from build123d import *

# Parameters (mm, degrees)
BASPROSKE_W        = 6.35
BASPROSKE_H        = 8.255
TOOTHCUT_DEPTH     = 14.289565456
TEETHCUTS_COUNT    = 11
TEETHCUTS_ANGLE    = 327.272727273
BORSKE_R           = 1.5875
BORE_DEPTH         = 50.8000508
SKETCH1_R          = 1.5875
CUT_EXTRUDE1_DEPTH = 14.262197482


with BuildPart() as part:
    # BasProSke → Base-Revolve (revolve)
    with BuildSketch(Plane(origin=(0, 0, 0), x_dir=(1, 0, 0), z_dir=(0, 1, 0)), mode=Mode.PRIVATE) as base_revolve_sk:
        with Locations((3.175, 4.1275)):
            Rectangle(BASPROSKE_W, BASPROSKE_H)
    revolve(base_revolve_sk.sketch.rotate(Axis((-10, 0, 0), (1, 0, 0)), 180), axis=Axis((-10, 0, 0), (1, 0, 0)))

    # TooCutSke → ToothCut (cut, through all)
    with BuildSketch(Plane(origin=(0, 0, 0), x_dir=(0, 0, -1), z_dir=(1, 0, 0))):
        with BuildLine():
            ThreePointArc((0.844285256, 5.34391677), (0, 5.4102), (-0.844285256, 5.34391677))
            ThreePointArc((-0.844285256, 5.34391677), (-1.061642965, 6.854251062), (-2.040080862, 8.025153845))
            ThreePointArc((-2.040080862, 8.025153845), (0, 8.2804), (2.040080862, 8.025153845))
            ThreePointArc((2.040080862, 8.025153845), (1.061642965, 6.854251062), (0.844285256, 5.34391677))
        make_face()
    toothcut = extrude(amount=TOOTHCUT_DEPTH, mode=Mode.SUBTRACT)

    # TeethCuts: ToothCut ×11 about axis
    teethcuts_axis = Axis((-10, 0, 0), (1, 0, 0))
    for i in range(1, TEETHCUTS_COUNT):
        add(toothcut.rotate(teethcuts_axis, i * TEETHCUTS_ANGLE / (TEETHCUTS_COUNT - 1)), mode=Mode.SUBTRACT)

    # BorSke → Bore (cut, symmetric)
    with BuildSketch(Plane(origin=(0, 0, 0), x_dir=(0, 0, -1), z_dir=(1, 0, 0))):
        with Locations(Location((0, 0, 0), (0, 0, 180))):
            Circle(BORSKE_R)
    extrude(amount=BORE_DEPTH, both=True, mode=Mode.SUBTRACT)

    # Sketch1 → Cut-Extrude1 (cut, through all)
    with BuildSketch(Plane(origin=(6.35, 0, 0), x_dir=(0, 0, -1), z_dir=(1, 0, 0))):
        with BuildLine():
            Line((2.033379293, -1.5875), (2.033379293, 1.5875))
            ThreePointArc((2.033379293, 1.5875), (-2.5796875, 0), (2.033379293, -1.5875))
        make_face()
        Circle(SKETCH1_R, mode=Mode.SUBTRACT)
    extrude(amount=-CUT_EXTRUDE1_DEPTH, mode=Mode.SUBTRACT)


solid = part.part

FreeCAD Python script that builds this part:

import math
import FreeCAD as App
import Part
import Sketcher
Q = App.Units.Quantity


def add_polygon(sketch, points):
    """Adds a closed chain of lines whose ends are joined by coincident constraints."""
    first, n = sketch.GeometryCount, len(points)
    for a, b in zip(points, points[1:] + points[:1]):
        sketch.addGeometry(Part.LineSegment(App.Vector(*a, 0), App.Vector(*b, 0)), False)
    for i in range(n):
        sketch.addConstraint(Sketcher.Constraint("Coincident", first + i, 2, first + (i + 1) % n, 1))

doc = App.newDocument("Part")
body = doc.addObject("PartDesign::Body", "Body")

sketch1 = body.newObject("Sketcher::SketchObject", "Sketch")
sketch1.AttachmentSupport = (doc.getObject("XZ_Plane"), [""])
sketch1.MapMode = "FlatFace"
add_polygon(sketch1, [(0, -8), (0, 0), (6, 0), (6, -8)])
sketch1.addConstraint([
    Sketcher.Constraint("Vertical", 0),
    Sketcher.Constraint("Horizontal", 1),
    Sketcher.Constraint("Vertical", 2),
    Sketcher.Constraint("Horizontal", 3),
    Sketcher.Constraint("Coincident", 0, 2, -1, 1),
    Sketcher.Constraint("DistanceX", 1, 1, 1, 2, Q("0.25 in")),
    Sketcher.Constraint("DistanceY", 0, 1, 0, 2, Q("0.325 in")),
])
revolution = body.newObject("PartDesign::Revolution", "Revolution")
revolution.Profile = sketch1
revolution.ReferenceAxis = (sketch1, ["H_Axis"])
revolution.Angle = 360

sketch2 = body.newObject("Sketcher::SketchObject", "Sketch001")
sketch2.AttachmentSupport = (doc.getObject("YZ_Plane"), [""])
sketch2.MapMode = "FlatFace"
sketch2.addGeometry([
    Part.ArcOfCircle(Part.Circle(App.Vector(0, 0, 0), App.Vector(0, 0, 1), 5.4), math.radians(-8.98), math.radians(8.98)),
    Part.ArcOfCircle(Part.Circle(App.Vector(5.7, -3.6, 0), App.Vector(0, 0, 1), 2.8), math.radians(34), math.radians(98)),
    Part.ArcOfCircle(Part.Circle(App.Vector(0, 0, 0), App.Vector(0, 0, 1), 8.3), math.radians(-14), math.radians(14)),
    Part.ArcOfCircle(Part.Circle(App.Vector(5.7, 3.6, 0), App.Vector(0, 0, 1), 2.8), math.radians(-98), math.radians(-34)),
], False)
sketch2.addConstraint([
    Sketcher.Constraint("Coincident", 0, 1, 1, 2),
    Sketcher.Constraint("Coincident", 1, 1, 2, 1),
    Sketcher.Constraint("Coincident", 2, 2, 3, 2),
    Sketcher.Constraint("Coincident", 3, 1, 0, 2),
    Sketcher.Constraint("Coincident", 0, 3, -1, 1),
    Sketcher.Constraint("Coincident", 2, 3, -1, 1),
    Sketcher.Constraint("Equal", 1, 3),
    Sketcher.Constraint("Symmetric", 1, 3, 3, 3, -1),
    Sketcher.Constraint("Radius", 1, Q("0.11 in")),
    Sketcher.Constraint("Radius", 0, Q("0.213 in")),
    Sketcher.Constraint("Radius", 2, Q("0.326 in")),
    Sketcher.Constraint("DistanceX", 0, 1, 1, 3, 0.372298),
    Sketcher.Constraint("DistanceY", 1, 3, -1, 1, 3.61337),
])
pocket1 = body.newObject("PartDesign::Pocket", "Pocket")
pocket1.Profile = sketch2
pocket1.Type = "ThroughAll"
pocket1.Reversed = True
doc.recompute()

polarpattern = body.newObject("PartDesign::PolarPattern", "PolarPattern")
polarpattern.Originals = [pocket1]
polarpattern.Axis = (doc.getObject("X_Axis"), [""])
polarpattern.Angle = 360
polarpattern.Occurrences = 11
body.Tip = polarpattern

sketch3 = body.newObject("Sketcher::SketchObject", "Sketch002")
sketch3.AttachmentSupport = (doc.getObject("YZ_Plane"), [""])
sketch3.MapMode = "FlatFace"
sketch3.addGeometry(Part.Circle(App.Vector(0, 0, 0), App.Vector(0, 0, 1), 1.6), False)
sketch3.addConstraint([
    Sketcher.Constraint("Coincident", 0, 3, -1, 1),
    Sketcher.Constraint("Diameter", 0, Q("0.125 in")),
])
pocket2 = body.newObject("PartDesign::Pocket", "Pocket001")
pocket2.Profile = sketch3
pocket2.Length = 101.600102
pocket2.Midplane = True

sketch4 = body.newObject("Sketcher::SketchObject", "Sketch003")
sketch4.AttachmentSupport = (doc.getObject("YZ_Plane"), [""])
sketch4.MapMode = "FlatFace"
sketch4.AttachmentOffset = App.Placement(App.Vector(0, 0, 0.25 * 25.4), App.Rotation())
sketch4.addGeometry([
    Part.LineSegment(App.Vector(-1.6, -2, 0), App.Vector(1.6, -2, 0)),
    Part.ArcOfCircle(Part.Circle(App.Vector(0, 0, 0), App.Vector(0, 0, 1), 2.6), math.radians(-52), math.radians(232)),
    Part.Circle(App.Vector(0, 0, 0), App.Vector(0, 0, 1), 1.6),
], False)
sketch4.addConstraint([
    Sketcher.Constraint("Coincident", 0, 1, 1, 2),
    Sketcher.Constraint("Coincident", 1, 1, 0, 2),
    Sketcher.Constraint("Horizontal", 0),
    Sketcher.Constraint("Coincident", 1, 3, -1, 1),
    Sketcher.Constraint("Coincident", 2, 3, -1, 1),
    Sketcher.Constraint("Diameter", 2, Q("0.125 in")),
    Sketcher.Constraint("DistanceX", 0, 1, 0, 2, Q("0.125 in")),
    Sketcher.Constraint("Radius", 1, 2.579687),
])
pocket3 = body.newObject("PartDesign::Pocket", "Pocket002")
pocket3.Profile = sketch4
pocket3.Type = "ThroughAll"

doc.recompute()
